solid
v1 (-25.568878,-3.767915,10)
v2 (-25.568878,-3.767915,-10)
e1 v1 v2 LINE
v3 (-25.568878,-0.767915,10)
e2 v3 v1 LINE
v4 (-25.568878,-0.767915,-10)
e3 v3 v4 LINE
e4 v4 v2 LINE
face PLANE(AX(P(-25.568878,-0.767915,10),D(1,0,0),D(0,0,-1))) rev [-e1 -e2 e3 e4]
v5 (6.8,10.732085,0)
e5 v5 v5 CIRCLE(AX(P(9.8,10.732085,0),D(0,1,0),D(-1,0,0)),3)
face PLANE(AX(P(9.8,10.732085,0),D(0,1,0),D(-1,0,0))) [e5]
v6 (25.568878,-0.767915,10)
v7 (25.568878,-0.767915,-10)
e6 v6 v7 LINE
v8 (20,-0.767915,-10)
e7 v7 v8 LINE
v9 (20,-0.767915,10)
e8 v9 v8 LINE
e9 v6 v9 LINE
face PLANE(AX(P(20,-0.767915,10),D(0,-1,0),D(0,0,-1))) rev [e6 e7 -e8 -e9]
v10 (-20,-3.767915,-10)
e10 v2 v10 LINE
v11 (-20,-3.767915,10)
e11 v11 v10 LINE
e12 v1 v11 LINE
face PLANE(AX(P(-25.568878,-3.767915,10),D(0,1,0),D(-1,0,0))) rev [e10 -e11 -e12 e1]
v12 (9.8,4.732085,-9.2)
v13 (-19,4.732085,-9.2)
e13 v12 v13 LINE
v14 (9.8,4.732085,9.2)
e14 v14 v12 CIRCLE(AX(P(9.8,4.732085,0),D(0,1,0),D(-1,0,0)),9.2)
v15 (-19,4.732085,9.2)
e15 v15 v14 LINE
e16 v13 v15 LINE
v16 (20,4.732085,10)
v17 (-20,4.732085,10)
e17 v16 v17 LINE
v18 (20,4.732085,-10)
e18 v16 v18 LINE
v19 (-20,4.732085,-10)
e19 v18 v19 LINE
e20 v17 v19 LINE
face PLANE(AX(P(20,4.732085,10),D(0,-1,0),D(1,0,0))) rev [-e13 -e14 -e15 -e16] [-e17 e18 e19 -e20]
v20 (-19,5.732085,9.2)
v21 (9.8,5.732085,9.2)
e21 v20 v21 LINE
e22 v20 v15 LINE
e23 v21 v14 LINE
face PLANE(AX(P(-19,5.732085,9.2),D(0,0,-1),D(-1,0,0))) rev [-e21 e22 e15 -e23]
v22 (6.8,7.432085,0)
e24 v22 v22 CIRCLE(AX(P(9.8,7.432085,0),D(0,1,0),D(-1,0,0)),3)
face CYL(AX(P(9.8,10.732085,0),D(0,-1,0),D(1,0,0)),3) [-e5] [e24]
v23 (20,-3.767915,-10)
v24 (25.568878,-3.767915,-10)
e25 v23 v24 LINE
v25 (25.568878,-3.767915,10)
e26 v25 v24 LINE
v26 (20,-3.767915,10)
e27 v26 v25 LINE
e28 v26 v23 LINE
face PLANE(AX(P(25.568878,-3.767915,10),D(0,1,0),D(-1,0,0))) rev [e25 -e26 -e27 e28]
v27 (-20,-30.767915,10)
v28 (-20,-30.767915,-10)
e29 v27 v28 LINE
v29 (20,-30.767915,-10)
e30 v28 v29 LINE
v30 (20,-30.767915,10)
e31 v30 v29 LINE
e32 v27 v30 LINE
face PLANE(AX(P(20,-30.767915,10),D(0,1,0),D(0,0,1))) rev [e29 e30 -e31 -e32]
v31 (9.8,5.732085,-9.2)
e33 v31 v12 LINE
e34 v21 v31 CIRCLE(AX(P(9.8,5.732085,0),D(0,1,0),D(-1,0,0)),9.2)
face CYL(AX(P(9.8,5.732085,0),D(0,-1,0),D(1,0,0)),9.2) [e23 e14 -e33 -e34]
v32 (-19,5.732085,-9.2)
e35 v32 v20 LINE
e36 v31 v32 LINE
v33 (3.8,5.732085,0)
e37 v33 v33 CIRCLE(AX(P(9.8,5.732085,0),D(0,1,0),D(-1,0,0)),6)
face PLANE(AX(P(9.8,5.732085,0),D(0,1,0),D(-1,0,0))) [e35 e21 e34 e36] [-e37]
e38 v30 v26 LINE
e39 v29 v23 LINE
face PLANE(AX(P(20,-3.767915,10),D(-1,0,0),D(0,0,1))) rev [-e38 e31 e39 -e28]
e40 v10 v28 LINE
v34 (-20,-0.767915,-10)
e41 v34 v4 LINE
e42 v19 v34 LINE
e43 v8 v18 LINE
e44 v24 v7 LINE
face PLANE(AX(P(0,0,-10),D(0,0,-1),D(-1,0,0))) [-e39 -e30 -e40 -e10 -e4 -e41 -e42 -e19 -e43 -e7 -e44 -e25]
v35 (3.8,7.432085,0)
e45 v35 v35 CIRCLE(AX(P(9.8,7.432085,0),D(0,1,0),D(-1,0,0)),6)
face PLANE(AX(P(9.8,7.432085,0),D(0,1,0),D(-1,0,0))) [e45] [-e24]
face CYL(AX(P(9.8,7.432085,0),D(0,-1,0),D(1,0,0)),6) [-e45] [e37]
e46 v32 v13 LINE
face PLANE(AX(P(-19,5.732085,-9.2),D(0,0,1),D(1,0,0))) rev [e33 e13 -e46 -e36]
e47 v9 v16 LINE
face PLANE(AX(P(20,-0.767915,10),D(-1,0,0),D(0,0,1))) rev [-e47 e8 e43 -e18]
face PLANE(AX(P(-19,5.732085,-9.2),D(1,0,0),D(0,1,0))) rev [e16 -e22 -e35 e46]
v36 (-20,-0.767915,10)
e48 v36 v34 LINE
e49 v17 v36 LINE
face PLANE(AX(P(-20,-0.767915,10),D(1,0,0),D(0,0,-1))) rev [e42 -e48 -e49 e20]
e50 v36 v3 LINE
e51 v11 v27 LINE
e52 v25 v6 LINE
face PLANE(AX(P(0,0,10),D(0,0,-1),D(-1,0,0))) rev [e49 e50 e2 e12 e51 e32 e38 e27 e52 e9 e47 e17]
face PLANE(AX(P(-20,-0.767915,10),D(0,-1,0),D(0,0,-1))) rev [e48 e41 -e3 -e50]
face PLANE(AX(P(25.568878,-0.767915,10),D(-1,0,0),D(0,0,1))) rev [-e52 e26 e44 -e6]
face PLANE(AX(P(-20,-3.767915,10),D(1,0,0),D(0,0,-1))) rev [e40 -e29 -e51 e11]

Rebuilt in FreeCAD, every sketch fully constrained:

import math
import FreeCAD as App
import Part
import Sketcher
from FreeCAD import Vector

doc = App.newDocument("Part")
params = doc.addObject("Spreadsheet::Sheet", "Params")
for row, (alias, value) in enumerate([
    ("sketch1_width", "40 mm"),
    ("sketch1_height", "3 mm"),
    ("sketch1_height2", "27 mm"),
    ("sketch1_height3", "5.5 mm"),
    ("pad1_length", "20 mm"),
    ("sketch2_radius", "9.2 mm"),
    ("sketch2_width", "28.8 mm"),
    ("pad2_length", "1 mm"),
    ("sketch3_diameter", "6 mm"),
    ("pad3_length", "5 mm"),
    ("sketch4_diameter", "12 mm"),
    ("pad4_length", "1.7 mm"),
], start=1):
    params.set(f"A{row}", alias)
    params.set(f"B{row}", "=" + value)
    params.setAlias(f"B{row}", alias)

body = doc.addObject("PartDesign::Body", "Body")

# Sketch on XY plane
sketch1 = body.newObject("Sketcher::SketchObject", "Sketch")
sketch1.AttachmentSupport = (doc.getObject("XY_Plane"), [""])
sketch1.MapMode = "FlatFace"
sketch1.addGeometry(Part.LineSegment(Vector(25.6, -0.8, 0), Vector(20, -0.8, 0)), False)
sketch1.addGeometry(Part.LineSegment(Vector(20, -0.8, 0), Vector(20, 4.7, 0)), False)
sketch1.addGeometry(Part.LineSegment(Vector(20, 4.7, 0), Vector(-20, 4.7, 0)), False)
sketch1.addGeometry(Part.LineSegment(Vector(-20, 4.7, 0), Vector(-20, -0.8, 0)), False)
sketch1.addGeometry(Part.LineSegment(Vector(-20, -0.8, 0), Vector(-25.6, -0.8, 0)), False)
sketch1.addGeometry(Part.LineSegment(Vector(-25.6, -0.8, 0), Vector(-25.6, -3.8, 0)), False)
sketch1.addGeometry(Part.LineSegment(Vector(-25.6, -3.8, 0), Vector(-20, -3.8, 0)), False)
sketch1.addGeometry(Part.LineSegment(Vector(-20, -3.8, 0), Vector(-20, -30.8, 0)), False)
sketch1.addGeometry(Part.LineSegment(Vector(-20, -30.8, 0), Vector(20, -30.8, 0)), False)
sketch1.addGeometry(Part.LineSegment(Vector(20, -30.8, 0), Vector(20, -3.8, 0)), False)
sketch1.addGeometry(Part.LineSegment(Vector(20, -3.8, 0), Vector(25.6, -3.8, 0)), False)
sketch1.addGeometry(Part.LineSegment(Vector(25.6, -3.8, 0), Vector(25.6, -0.8, 0)), False)
sketch1.addConstraint(Sketcher.Constraint("Coincident", 0, 2, 1, 1))
sketch1.addConstraint(Sketcher.Constraint("Coincident", 1, 2, 2, 1))
sketch1.addConstraint(Sketcher.Constraint("Coincident", 2, 2, 3, 1))
sketch1.addConstraint(Sketcher.Constraint("Coincident", 3, 2, 4, 1))
sketch1.addConstraint(Sketcher.Constraint("Coincident", 4, 2, 5, 1))
sketch1.addConstraint(Sketcher.Constraint("Coincident", 5, 2, 6, 1))
sketch1.addConstraint(Sketcher.Constraint("Coincident", 6, 2, 7, 1))
sketch1.addConstraint(Sketcher.Constraint("Coincident", 7, 2, 8, 1))
sketch1.addConstraint(Sketcher.Constraint("Coincident", 8, 2, 9, 1))
sketch1.addConstraint(Sketcher.Constraint("Coincident", 9, 2, 10, 1))
sketch1.addConstraint(Sketcher.Constraint("Coincident", 10, 2, 11, 1))
sketch1.addConstraint(Sketcher.Constraint("Coincident", 11, 2, 0, 1))
sketch1.addConstraint(Sketcher.Constraint("Horizontal", 0))
sketch1.addConstraint(Sketcher.Constraint("Vertical", 1))
sketch1.addConstraint(Sketcher.Constraint("Horizontal", 2))
sketch1.addConstraint(Sketcher.Constraint("Vertical", 3))
sketch1.addConstraint(Sketcher.Constraint("Horizontal", 4))
sketch1.addConstraint(Sketcher.Constraint("Vertical", 5))
sketch1.addConstraint(Sketcher.Constraint("Horizontal", 6))
sketch1.addConstraint(Sketcher.Constraint("Vertical", 7))
sketch1.addConstraint(Sketcher.Constraint("Horizontal", 8))
sketch1.addConstraint(Sketcher.Constraint("Vertical", 9))
sketch1.addConstraint(Sketcher.Constraint("Horizontal", 10))
sketch1.addConstraint(Sketcher.Constraint("Vertical", 11))
sketch1.addConstraint(Sketcher.Constraint("Symmetric", 0, 2, 3, 2, -2))
sketch1.addConstraint(Sketcher.Constraint("Symmetric", 6, 2, 9, 2, -2))
sketch1.addConstraint(Sketcher.Constraint("Vertical", 3, 2, 6, 2))
sketch1.addConstraint(Sketcher.Constraint("Equal", 0, 4))
sketch1.addConstraint(Sketcher.Constraint("DistanceX", 2, 2, 2, 1, 40.0))
sketch1.addConstraint(Sketcher.Constraint("DistanceY", 5, 2, 5, 1, 3.0))
sketch1.addConstraint(Sketcher.Constraint("DistanceY", 7, 2, 7, 1, 27.0))
sketch1.addConstraint(Sketcher.Constraint("DistanceY", 1, 1, 1, 2, 5.5))
sketch1.addConstraint(Sketcher.Constraint("DistanceX", 0, 2, 0, 1, 5.568878))
sketch1.addConstraint(Sketcher.Constraint("DistanceY", 0, 2, -1, 1, 0.767915))
sketch1.setExpression("Constraints[28]", "Params.sketch1_width")
sketch1.setExpression("Constraints[29]", "Params.sketch1_height")
sketch1.setExpression("Constraints[30]", "Params.sketch1_height2")
sketch1.setExpression("Constraints[31]", "Params.sketch1_height3")
pad1 = body.newObject("PartDesign::Pad", "Pad")
pad1.Profile = sketch1
pad1.setExpression("Length", "Params.pad1_length")
pad1.Midplane = True

# Sketch on XZ plane
sketch2 = body.newObject("Sketcher::SketchObject", "Sketch001")
sketch2.AttachmentSupport = (doc.getObject("XZ_Plane"), [""])
sketch2.MapMode = "FlatFace"
sketch2.AttachmentOffset = App.Placement(Vector(0, 0, -4.732085), App.Rotation())
sketch2.addGeometry(Part.LineSegment(Vector(10, -9, 0), Vector(-19, -9, 0)), False)
sketch2.addGeometry(Part.LineSegment(Vector(-19, -9, 0), Vector(-19, 9, 0)), False)
sketch2.addGeometry(Part.LineSegment(Vector(-19, 9, 0), Vector(10, 9, 0)), False)
sketch2.addGeometry(Part.ArcOfCircle(Part.Circle(Vector(10, 0, 0), Vector(0, 0, 1), 9), math.radians(-90), math.radians(90)), False)
sketch2.addConstraint(Sketcher.Constraint("Coincident", 0, 2, 1, 1))
sketch2.addConstraint(Sketcher.Constraint("Coincident", 1, 2, 2, 1))
sketch2.addConstraint(Sketcher.Constraint("Tangent", 2, 2, 3, 2))
sketch2.addConstraint(Sketcher.Constraint("Tangent", 3, 1, 0, 1))
sketch2.addConstraint(Sketcher.Constraint("Horizontal", 0))
sketch2.addConstraint(Sketcher.Constraint("Vertical", 1))
sketch2.addConstraint(Sketcher.Constraint("Horizontal", 2))
sketch2.addConstraint(Sketcher.Constraint("PointOnObject", 3, 3, -1))
sketch2.addConstraint(Sketcher.Constraint("Radius", 3, 9.2))
sketch2.addConstraint(Sketcher.Constraint("DistanceX", 0, 2, 0, 1, 28.8))
sketch2.addConstraint(Sketcher.Constraint("DistanceX", 0, 2, -1, 1, 19.0))
sketch2.setExpression("Constraints[8]", "Params.sketch2_radius")
sketch2.setExpression("Constraints[9]", "Params.sketch2_width")
pad2 = body.newObject("PartDesign::Pad", "Pad001")
pad2.Profile = sketch2
pad2.setExpression("Length", "Params.pad2_length")
pad2.Reversed = True

# Sketch on XZ plane
sketch3 = body.newObject("Sketcher::SketchObject", "Sketch002")
sketch3.AttachmentSupport = (doc.getObject("XZ_Plane"), [""])
sketch3.MapMode = "FlatFace"
sketch3.AttachmentOffset = App.Placement(Vector(0, 0, -5.732085), App.Rotation())
sketch3.addGeometry(Part.Circle(Vector(9.8, 0, 0), Vector(0, 0, 1), 3), False)
sketch3.addConstraint(Sketcher.Constraint("PointOnObject", 0, 3, -1))
sketch3.addConstraint(Sketcher.Constraint("Diameter", 0, 6.0))
sketch3.addConstraint(Sketcher.Constraint("DistanceX", -1, 1, 0, 3, 9.8))
sketch3.setExpression("Constraints[1]", "Params.sketch3_diameter")
pad3 = body.newObject("PartDesign::Pad", "Pad002")
pad3.Profile = sketch3
pad3.setExpression("Length", "Params.pad3_length")
pad3.Reversed = True

# Sketch on XZ plane
sketch4 = body.newObject("Sketcher::SketchObject", "Sketch003")
sketch4.AttachmentSupport = (doc.getObject("XZ_Plane"), [""])
sketch4.MapMode = "FlatFace"
sketch4.AttachmentOffset = App.Placement(Vector(0, 0, -5.732085), App.Rotation())
sketch4.addGeometry(Part.Circle(Vector(10, 0, 0), Vector(0, 0, 1), 6), False)
sketch4.addConstraint(Sketcher.Constraint("PointOnObject", 0, 3, -1))
sketch4.addConstraint(Sketcher.Constraint("Diameter", 0, 12.0))
sketch4.addConstraint(Sketcher.Constraint("DistanceX", -1, 1, 0, 3, 9.8))
sketch4.setExpression("Constraints[1]", "Params.sketch4_diameter")
pad4 = body.newObject("PartDesign::Pad", "Pad003")
pad4.Profile = sketch4
pad4.setExpression("Length", "Params.pad4_length")
pad4.Reversed = True

doc.recompute()
